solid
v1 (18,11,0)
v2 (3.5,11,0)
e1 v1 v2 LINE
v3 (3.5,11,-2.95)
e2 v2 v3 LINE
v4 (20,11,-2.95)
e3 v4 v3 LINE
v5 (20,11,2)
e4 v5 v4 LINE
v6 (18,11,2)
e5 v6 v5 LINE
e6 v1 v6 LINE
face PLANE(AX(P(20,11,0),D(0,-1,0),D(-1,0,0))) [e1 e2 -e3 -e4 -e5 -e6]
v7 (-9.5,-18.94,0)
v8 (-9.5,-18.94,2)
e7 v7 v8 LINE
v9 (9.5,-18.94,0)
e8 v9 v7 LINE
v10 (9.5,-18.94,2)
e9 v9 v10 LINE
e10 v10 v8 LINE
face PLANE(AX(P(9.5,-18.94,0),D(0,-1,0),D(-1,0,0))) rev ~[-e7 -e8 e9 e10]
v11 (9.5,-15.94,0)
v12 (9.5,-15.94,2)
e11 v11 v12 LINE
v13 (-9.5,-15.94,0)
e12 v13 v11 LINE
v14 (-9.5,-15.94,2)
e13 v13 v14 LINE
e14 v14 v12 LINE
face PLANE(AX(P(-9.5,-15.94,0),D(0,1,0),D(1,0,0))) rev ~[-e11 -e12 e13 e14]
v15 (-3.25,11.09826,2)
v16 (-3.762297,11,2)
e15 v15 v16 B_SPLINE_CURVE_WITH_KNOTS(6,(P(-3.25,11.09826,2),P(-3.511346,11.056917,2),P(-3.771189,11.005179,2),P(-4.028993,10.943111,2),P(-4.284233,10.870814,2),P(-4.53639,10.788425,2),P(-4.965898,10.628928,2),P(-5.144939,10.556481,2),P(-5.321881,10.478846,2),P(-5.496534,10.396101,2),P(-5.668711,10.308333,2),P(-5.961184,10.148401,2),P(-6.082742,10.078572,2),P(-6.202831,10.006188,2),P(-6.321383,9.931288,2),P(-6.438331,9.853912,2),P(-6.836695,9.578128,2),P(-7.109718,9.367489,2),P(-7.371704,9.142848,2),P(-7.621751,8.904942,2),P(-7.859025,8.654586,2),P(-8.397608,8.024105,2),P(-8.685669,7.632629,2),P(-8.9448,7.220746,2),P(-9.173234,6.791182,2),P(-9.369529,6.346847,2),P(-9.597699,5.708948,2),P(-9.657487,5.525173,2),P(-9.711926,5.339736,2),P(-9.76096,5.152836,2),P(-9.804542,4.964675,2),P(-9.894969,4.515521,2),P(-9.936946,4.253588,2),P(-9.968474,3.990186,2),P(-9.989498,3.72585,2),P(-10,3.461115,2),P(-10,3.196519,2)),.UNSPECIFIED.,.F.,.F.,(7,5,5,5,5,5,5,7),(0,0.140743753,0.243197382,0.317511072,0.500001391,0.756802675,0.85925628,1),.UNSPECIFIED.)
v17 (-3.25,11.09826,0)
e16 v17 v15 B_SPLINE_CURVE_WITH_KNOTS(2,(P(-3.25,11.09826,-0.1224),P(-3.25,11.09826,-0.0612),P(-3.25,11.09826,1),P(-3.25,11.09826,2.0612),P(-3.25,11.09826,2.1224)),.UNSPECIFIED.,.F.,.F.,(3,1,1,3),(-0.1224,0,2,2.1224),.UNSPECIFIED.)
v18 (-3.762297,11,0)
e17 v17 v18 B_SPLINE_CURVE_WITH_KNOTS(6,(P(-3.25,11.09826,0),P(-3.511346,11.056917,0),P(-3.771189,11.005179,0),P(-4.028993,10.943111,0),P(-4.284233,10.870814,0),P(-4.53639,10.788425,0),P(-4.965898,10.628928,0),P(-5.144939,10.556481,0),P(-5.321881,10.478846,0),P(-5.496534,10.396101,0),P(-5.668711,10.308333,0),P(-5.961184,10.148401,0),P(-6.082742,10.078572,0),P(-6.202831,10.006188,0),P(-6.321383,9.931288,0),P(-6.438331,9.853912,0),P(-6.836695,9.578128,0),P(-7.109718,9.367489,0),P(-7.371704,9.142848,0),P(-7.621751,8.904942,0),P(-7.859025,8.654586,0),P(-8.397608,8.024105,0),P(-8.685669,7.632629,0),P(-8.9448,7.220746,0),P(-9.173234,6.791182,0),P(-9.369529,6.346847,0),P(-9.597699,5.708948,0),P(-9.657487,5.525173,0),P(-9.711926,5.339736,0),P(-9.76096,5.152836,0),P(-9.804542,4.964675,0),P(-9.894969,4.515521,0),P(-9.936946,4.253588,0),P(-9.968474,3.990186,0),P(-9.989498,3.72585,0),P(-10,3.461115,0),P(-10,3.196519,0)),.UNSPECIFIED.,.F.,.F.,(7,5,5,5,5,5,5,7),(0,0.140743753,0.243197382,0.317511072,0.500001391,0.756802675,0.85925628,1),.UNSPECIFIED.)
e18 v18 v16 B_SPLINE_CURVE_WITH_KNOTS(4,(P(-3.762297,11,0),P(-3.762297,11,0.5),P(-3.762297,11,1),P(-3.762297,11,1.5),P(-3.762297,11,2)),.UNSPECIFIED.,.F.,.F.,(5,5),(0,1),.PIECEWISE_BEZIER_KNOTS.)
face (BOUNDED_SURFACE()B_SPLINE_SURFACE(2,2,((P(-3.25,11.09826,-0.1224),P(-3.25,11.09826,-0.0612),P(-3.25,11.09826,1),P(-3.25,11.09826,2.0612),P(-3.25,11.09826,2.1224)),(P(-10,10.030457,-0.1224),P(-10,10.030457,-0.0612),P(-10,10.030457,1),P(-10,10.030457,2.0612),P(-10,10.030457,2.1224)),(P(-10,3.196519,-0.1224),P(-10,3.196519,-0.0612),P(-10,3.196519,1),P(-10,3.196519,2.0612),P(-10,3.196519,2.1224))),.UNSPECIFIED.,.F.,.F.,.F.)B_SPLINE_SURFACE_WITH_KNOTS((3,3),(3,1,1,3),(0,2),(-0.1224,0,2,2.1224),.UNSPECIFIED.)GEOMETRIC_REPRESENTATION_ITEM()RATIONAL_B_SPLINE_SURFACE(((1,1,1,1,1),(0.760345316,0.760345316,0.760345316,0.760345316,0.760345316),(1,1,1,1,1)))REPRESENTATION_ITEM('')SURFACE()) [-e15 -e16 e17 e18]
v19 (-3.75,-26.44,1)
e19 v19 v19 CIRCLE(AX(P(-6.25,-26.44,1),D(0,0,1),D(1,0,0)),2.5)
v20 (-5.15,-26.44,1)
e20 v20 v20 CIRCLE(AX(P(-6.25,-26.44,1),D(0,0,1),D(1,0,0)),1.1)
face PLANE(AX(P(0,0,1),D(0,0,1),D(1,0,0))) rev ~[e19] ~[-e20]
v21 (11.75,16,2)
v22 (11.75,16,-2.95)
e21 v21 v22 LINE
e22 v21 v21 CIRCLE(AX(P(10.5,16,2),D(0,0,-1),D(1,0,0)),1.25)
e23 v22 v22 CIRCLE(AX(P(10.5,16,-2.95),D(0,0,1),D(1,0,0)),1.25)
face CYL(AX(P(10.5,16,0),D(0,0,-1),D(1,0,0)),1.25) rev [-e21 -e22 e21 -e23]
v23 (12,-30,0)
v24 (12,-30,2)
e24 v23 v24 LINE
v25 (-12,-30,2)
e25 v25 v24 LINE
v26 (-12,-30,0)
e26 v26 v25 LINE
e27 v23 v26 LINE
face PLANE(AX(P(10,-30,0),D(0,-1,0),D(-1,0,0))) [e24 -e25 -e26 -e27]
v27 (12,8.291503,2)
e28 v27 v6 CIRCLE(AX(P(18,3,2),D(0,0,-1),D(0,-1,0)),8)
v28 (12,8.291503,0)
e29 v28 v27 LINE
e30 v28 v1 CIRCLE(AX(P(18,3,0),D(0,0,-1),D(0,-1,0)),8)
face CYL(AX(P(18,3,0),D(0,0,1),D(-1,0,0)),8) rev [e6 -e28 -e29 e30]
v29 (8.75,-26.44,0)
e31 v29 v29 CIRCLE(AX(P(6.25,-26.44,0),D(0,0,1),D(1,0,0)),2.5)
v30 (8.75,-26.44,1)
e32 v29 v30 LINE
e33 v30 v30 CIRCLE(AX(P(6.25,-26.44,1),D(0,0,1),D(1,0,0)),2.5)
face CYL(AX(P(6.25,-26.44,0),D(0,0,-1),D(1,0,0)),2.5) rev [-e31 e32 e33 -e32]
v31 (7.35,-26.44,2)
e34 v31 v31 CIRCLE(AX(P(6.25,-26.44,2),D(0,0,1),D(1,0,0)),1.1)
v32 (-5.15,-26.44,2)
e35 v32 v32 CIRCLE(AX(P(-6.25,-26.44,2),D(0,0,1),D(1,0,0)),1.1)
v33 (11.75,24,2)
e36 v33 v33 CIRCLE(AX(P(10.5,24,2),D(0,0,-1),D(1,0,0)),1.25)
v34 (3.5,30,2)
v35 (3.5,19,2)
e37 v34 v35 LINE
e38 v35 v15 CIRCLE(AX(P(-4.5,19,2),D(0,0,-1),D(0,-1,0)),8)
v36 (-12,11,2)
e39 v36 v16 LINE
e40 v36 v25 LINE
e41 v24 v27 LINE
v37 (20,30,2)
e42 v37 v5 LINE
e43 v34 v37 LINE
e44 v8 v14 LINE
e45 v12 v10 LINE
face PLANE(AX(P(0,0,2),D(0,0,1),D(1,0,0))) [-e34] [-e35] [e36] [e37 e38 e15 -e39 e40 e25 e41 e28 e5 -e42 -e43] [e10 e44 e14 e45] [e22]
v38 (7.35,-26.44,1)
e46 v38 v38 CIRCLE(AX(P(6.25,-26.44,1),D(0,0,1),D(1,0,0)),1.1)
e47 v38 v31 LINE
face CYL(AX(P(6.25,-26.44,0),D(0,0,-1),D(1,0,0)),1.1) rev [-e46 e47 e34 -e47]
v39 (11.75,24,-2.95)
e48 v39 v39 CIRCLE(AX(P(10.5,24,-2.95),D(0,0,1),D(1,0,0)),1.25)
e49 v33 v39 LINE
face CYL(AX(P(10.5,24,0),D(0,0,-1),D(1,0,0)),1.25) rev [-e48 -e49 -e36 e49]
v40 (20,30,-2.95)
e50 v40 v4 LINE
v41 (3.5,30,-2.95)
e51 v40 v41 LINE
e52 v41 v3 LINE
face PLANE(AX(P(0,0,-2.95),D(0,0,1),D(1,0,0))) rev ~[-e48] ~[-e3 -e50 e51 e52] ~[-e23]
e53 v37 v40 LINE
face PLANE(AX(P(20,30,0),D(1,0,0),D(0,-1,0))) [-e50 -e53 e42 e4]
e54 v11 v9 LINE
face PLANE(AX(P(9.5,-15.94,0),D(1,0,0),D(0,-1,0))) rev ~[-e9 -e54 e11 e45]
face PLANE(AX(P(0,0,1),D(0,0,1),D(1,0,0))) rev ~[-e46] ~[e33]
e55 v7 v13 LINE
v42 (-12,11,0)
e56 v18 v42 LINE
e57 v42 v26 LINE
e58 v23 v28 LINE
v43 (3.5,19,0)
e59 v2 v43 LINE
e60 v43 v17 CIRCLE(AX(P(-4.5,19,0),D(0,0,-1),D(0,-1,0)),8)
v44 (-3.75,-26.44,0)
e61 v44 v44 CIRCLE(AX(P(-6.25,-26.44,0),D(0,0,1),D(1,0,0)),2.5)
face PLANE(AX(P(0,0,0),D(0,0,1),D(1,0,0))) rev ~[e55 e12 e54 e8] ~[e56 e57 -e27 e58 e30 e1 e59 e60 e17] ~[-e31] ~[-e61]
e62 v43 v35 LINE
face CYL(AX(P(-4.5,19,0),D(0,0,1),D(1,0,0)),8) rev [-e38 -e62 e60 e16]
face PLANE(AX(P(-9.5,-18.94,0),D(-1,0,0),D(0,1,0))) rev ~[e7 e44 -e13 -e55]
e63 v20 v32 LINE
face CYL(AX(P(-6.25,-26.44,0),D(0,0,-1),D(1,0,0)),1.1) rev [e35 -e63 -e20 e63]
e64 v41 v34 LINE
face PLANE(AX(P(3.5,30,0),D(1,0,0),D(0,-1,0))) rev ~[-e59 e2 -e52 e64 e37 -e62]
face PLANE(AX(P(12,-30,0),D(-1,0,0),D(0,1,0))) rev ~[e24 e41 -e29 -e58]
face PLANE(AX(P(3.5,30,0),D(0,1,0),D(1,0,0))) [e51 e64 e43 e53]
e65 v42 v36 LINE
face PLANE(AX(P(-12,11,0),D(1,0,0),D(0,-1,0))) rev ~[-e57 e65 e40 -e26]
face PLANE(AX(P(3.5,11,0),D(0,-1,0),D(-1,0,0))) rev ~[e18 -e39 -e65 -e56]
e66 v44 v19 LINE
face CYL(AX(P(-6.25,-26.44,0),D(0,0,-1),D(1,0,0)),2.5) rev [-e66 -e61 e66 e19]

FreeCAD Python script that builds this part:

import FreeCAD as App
import Part
import Sketcher

V = App.Vector
Q = App.Units.Quantity


def edges_at(feature, points):
    """Names of the edges that pass closest to the given points."""
    edges = feature.Shape.Edges
    near = lambda p: min(range(len(edges)), key=lambda i: edges[i].distToShape(Part.Vertex(*p))[0])
    return sorted({f"Edge{near(p) + 1}" for p in points})

doc = App.newDocument("Part")
params = doc.addObject("Spreadsheet::Sheet", "Params")
for row, (alias, value) in enumerate([
    ("sketch1_diameter", "2.5 mm"),
    ("sketch1_diameter2", "2.2 mm"),
    ("sketch1_width", "20 mm"),
    ("sketch1_width2", "10 mm"),
    ("sketch1_width3", "19 mm"),
    ("pad1_length", "2 mm"),
    ("sketch2_diameter", "2.5 mm"),
    ("sketch2_height", "19 mm"),
    ("pad2_length", "2.95 mm"),
    ("fillet_radius", "8 mm"),
    ("sketch3_diameter", "5 mm"),
    ("sketch3_diameter2", "2.2 mm"),
    ("pocket1_length", "1 mm"),
    ("fillet2_radius", "8 mm"),
    ("sketch4_diameter", "5 mm"),
    ("sketch4_width", "19 mm"),
    ("sketch4_height", "3 mm"),
    ("sketch4_height2", "41 mm"),
    ("pad3_length", "2 mm"),
], start=1):
    params.set(f"A{row}", alias)
    params.set(f"B{row}", "=" + value)
    params.setAlias(f"B{row}", alias)

body = doc.addObject("PartDesign::Body", "Body")

# Sketch on XY plane
sketch1 = body.newObject("Sketcher::SketchObject", "Sketch")
sketch1.AttachmentSupport = (doc.getObject("XY_Plane"), [""])
sketch1.MapMode = "FlatFace"
sketch1.addGeometry(Part.LineSegment(V(3.5, 30, 0), V(3.5, 11, 0)), False)
sketch1.addGeometry(Part.LineSegment(V(3.5, 11, 0), V(-10, 11, 0)), False)
sketch1.addGeometry(Part.LineSegment(V(-10, 11, 0), V(-10, -30, 0)), False)
sketch1.addGeometry(Part.LineSegment(V(-10, -30, 0), V(10, -30, 0)), False)
sketch1.addGeometry(Part.LineSegment(V(10, -30, 0), V(10, 11, 0)), False)
sketch1.addGeometry(Part.LineSegment(V(10, 11, 0), V(20, 11, 0)), False)
sketch1.addGeometry(Part.LineSegment(V(20, 11, 0), V(20, 30, 0)), False)
sketch1.addGeometry(Part.LineSegment(V(20, 30, 0), V(3.5, 30, 0)), False)
sketch1.addGeometry(Part.Circle(V(10.5, 24, 0), V(0, 0, 1), 1.2), False)
sketch1.addGeometry(Part.Circle(V(10.5, 16, 0), V(0, 0, 1), 1.2), False)
sketch1.addGeometry(Part.LineSegment(V(-9.5, -18.9, 0), V(-9.5, -15.9, 0)), False)
sketch1.addGeometry(Part.LineSegment(V(-9.5, -15.9, 0), V(9.5, -15.9, 0)), False)
sketch1.addGeometry(Part.LineSegment(V(9.5, -15.9, 0), V(9.5, -18.9, 0)), False)
sketch1.addGeometry(Part.LineSegment(V(9.5, -18.9, 0), V(-9.5, -18.9, 0)), False)
sketch1.addGeometry(Part.Circle(V(6.2, -26.4, 0), V(0, 0, 1), 1.1), False)
sketch1.addGeometry(Part.Circle(V(-6.2, -26.4, 0), V(0, 0, 1), 1.1), False)
sketch1.addConstraint(Sketcher.Constraint("Coincident", 0, 2, 1, 1))
sketch1.addConstraint(Sketcher.Constraint("Coincident", 1, 2, 2, 1))
sketch1.addConstraint(Sketcher.Constraint("Coincident", 2, 2, 3, 1))
sketch1.addConstraint(Sketcher.Constraint("Coincident", 3, 2, 4, 1))
sketch1.addConstraint(Sketcher.Constraint("Coincident", 4, 2, 5, 1))
sketch1.addConstraint(Sketcher.Constraint("Coincident", 5, 2, 6, 1))
sketch1.addConstraint(Sketcher.Constraint("Coincident", 6, 2, 7, 1))
sketch1.addConstraint(Sketcher.Constraint("Coincident", 7, 2, 0, 1))
sketch1.addConstraint(Sketcher.Constraint("Coincident", 10, 2, 11, 1))
sketch1.addConstraint(Sketcher.Constraint("Coincident", 11, 2, 12, 1))
sketch1.addConstraint(Sketcher.Constraint("Coincident", 12, 2, 13, 1))
sketch1.addConstraint(Sketcher.Constraint("Coincident", 13, 2, 10, 1))
sketch1.addConstraint(Sketcher.Constraint("Vertical", 0))
sketch1.addConstraint(Sketcher.Constraint("Horizontal", 1))
sketch1.addConstraint(Sketcher.Constraint("Vertical", 2))
sketch1.addConstraint(Sketcher.Constraint("Horizontal", 3))
sketch1.addConstraint(Sketcher.Constraint("Vertical", 4))
sketch1.addConstraint(Sketcher.Constraint("Horizontal", 5))
sketch1.addConstraint(Sketcher.Constraint("Vertical", 6))
sketch1.addConstraint(Sketcher.Constraint("Horizontal", 7))
sketch1.addConstraint(Sketcher.Constraint("Vertical", 10))
sketch1.addConstraint(Sketcher.Constraint("Horizontal", 11))
sketch1.addConstraint(Sketcher.Constraint("Vertical", 12))
sketch1.addConstraint(Sketcher.Constraint("Horizontal", 13))
sketch1.addConstraint(Sketcher.Constraint("Equal", 8, 9))
sketch1.addConstraint(Sketcher.Constraint("Equal", 14, 15))
sketch1.addConstraint(Sketcher.Constraint("Symmetric", 14, 3, 15, 3, -2))
sketch1.addConstraint(Sketcher.Constraint("Symmetric", 1, 2, 4, 2, -2))
sketch1.addConstraint(Sketcher.Constraint("Vertical", 8, 3, 9, 3))
sketch1.addConstraint(Sketcher.Constraint("Equal", 13, 0))
sketch1.addConstraint(Sketcher.Constraint("Diameter", 8, Q("2.5 mm")))
sketch1.addConstraint(Sketcher.Constraint("Diameter", 14, Q("2.2 mm")))
sketch1.addConstraint(Sketcher.Constraint("DistanceX", 3, 1, 3, 2, Q("20 mm")))
sketch1.addConstraint(Sketcher.Constraint("DistanceX", 5, 1, 5, 2, Q("10 mm")))
sketch1.addConstraint(Sketcher.Constraint("DistanceX", 11, 1, 11, 2, Q("19 mm")))
sketch1.addConstraint(Sketcher.Constraint("DistanceY", 10, 1, 10, 2, Q("3 mm")))
sketch1.addConstraint(Sketcher.Constraint("DistanceY", 9, 3, 8, 3, Q("8 mm")))
sketch1.addConstraint(Sketcher.Constraint("DistanceX", 0, 2, 9, 3, Q("7 mm")))
sketch1.addConstraint(Sketcher.Constraint("DistanceY", 0, 2, 9, 3, Q("5 mm")))
sketch1.addConstraint(Sketcher.Constraint("DistanceX", -1, 1, 8, 3, Q("10.5 mm")))
sketch1.addConstraint(Sketcher.Constraint("DistanceX", 15, 3, 14, 3, Q("12.5 mm")))
sketch1.addConstraint(Sketcher.Constraint("DistanceY", 15, 3, 10, 2, Q("10.5 mm")))
sketch1.addConstraint(Sketcher.Constraint("DistanceY", 2, 2, 2, 1, Q("41 mm")))
sketch1.addConstraint(Sketcher.Constraint("DistanceY", 2, 2, 15, 3, Q("3.56 mm")))
sketch1.addConstraint(Sketcher.Constraint("DistanceY", -1, 1, 8, 3, Q("24 mm")))
sketch1.addConstraint(Sketcher.Constraint("DistanceX", 10, 2, -1, 1, Q("9.5 mm")))
sketch1.setExpression("Constraints[30]", "Params.sketch1_diameter")
sketch1.setExpression("Constraints[31]", "Params.sketch1_diameter2")
sketch1.setExpression("Constraints[32]", "Params.sketch1_width")
sketch1.setExpression("Constraints[33]", "Params.sketch1_width2")
sketch1.setExpression("Constraints[34]", "Params.sketch1_width3")
pad1 = body.newObject("PartDesign::Pad", "Pad")
pad1.Profile = sketch1
pad1.setExpression("Length", "Params.pad1_length")

# Sketch on XY plane
sketch2 = body.newObject("Sketcher::SketchObject", "Sketch001")
sketch2.AttachmentSupport = (doc.getObject("XY_Plane"), [""])
sketch2.MapMode = "FlatFace"
sketch2.addGeometry(Part.LineSegment(V(3.5, 30, 0), V(3.5, 11, 0)), False)
sketch2.addGeometry(Part.LineSegment(V(3.5, 11, 0), V(20, 11, 0)), False)
sketch2.addGeometry(Part.LineSegment(V(20, 11, 0), V(20, 30, 0)), False)
sketch2.addGeometry(Part.LineSegment(V(20, 30, 0), V(3.5, 30, 0)), False)
sketch2.addGeometry(Part.Circle(V(10.5, 24, 0), V(0, 0, 1), 1.2), False)
sketch2.addGeometry(Part.Circle(V(10.5, 16, 0), V(0, 0, 1), 1.2), False)
sketch2.addConstraint(Sketcher.Constraint("Coincident", 0, 2, 1, 1))
sketch2.addConstraint(Sketcher.Constraint("Coincident", 1, 2, 2, 1))
sketch2.addConstraint(Sketcher.Constraint("Coincident", 2, 2, 3, 1))
sketch2.addConstraint(Sketcher.Constraint("Coincident", 3, 2, 0, 1))
sketch2.addConstraint(Sketcher.Constraint("Vertical", 0))
sketch2.addConstraint(Sketcher.Constraint("Horizontal", 1))
sketch2.addConstraint(Sketcher.Constraint("Vertical", 2))
sketch2.addConstraint(Sketcher.Constraint("Horizontal", 3))
sketch2.addConstraint(Sketcher.Constraint("Equal", 4, 5))
sketch2.addConstraint(Sketcher.Constraint("Vertical", 4, 3, 5, 3))
sketch2.addConstraint(Sketcher.Constraint("Diameter", 4, Q("2.5 mm")))
sketch2.addConstraint(Sketcher.Constraint("DistanceY", 0, 2, 0, 1, Q("19 mm")))
sketch2.addConstraint(Sketcher.Constraint("DistanceX", -1, 1, 1, 2, Q("20 mm")))
sketch2.addConstraint(Sketcher.Constraint("DistanceY", 5, 3, 4, 3, Q("8 mm")))
sketch2.addConstraint(Sketcher.Constraint("DistanceX", 0, 2, 5, 3, Q("7 mm")))
sketch2.addConstraint(Sketcher.Constraint("DistanceY", 0, 2, 5, 3, Q("5 mm")))
sketch2.addConstraint(Sketcher.Constraint("DistanceX", -1, 1, 4, 3, Q("10.5 mm")))
sketch2.addConstraint(Sketcher.Constraint("DistanceY", -1, 1, 4, 3, Q("24 mm")))
sketch2.setExpression("Constraints[10]", "Params.sketch2_diameter")
sketch2.setExpression("Constraints[11]", "Params.sketch2_height")
pad2 = body.newObject("PartDesign::Pad", "Pad001")
pad2.Profile = sketch2
pad2.setExpression("Length", "Params.pad2_length")
pad2.Reversed = True
doc.recompute()

fillet = body.newObject("PartDesign::Fillet", "Fillet")
fillet.Base = (pad2, edges_at(pad2, [(10, 11, 1), (3.5, 11, 1)]))
fillet.setExpression("Radius", "Params.fillet_radius")

# Sketch on XY plane
sketch3 = body.newObject("Sketcher::SketchObject", "Sketch002")
sketch3.AttachmentSupport = (doc.getObject("XY_Plane"), [""])
sketch3.MapMode = "FlatFace"
sketch3.addGeometry(Part.Circle(V(6.2, -26.4, 0), V(0, 0, 1), 2.5), False)
sketch3.addGeometry(Part.Circle(V(6.2, -26.4, 0), V(0, 0, 1), 1.1), False)
sketch3.addGeometry(Part.Circle(V(-6.2, -26.4, 0), V(0, 0, 1), 2.5), False)
sketch3.addGeometry(Part.Circle(V(-6.2, -26.4, 0), V(0, 0, 1), 1.1), False)
sketch3.addConstraint(Sketcher.Constraint("Coincident", 1, 3, 0, 3))
sketch3.addConstraint(Sketcher.Constraint("Coincident", 3, 3, 2, 3))
sketch3.addConstraint(Sketcher.Constraint("Equal", 0, 2))
sketch3.addConstraint(Sketcher.Constraint("Equal", 1, 3))
sketch3.addConstraint(Sketcher.Constraint("Symmetric", 0, 3, 2, 3, -2))
sketch3.addConstraint(Sketcher.Constraint("Diameter", 0, Q("5 mm")))
sketch3.addConstraint(Sketcher.Constraint("Diameter", 1, Q("2.2 mm")))
sketch3.addConstraint(Sketcher.Constraint("DistanceX", 2, 3, 0, 3, Q("12.5 mm")))
sketch3.addConstraint(Sketcher.Constraint("DistanceY", 0, 3, -1, 1, Q("26.44 mm")))
sketch3.setExpression("Constraints[5]", "Params.sketch3_diameter")
sketch3.setExpression("Constraints[6]", "Params.sketch3_diameter2")
pocket1 = body.newObject("PartDesign::Pocket", "Pocket")
pocket1.Profile = sketch3
pocket1.setExpression("Length", "Params.pocket1_length")
pocket1.Reversed = True
doc.recompute()

fillet2 = body.newObject("PartDesign::Fillet", "Fillet001")
fillet2.Base = (pocket1, edges_at(pocket1, [(-10, 11, 1)]))
fillet2.setExpression("Radius", "Params.fillet2_radius")

# Sketch on XY plane
sketch4 = body.newObject("Sketcher::SketchObject", "Sketch003")
sketch4.AttachmentSupport = (doc.getObject("XY_Plane"), [""])
sketch4.MapMode = "FlatFace"
sketch4.addGeometry(Part.LineSegment(V(-12, 11, 0), V(-12, -30, 0)), False)
sketch4.addGeometry(Part.LineSegment(V(-12, -30, 0), V(12, -30, 0)), False)
sketch4.addGeometry(Part.LineSegment(V(12, -30, 0), V(12, 11, 0)), False)
sketch4.addGeometry(Part.LineSegment(V(12, 11, 0), V(-12, 11, 0)), False)
sketch4.addGeometry(Part.Circle(V(-6.2, -26.4, 0), V(0, 0, 1), 2.5), False)
sketch4.addGeometry(Part.LineSegment(V(-9.5, -18.9, 0), V(-9.5, -15.9, 0)), False)
sketch4.addGeometry(Part.LineSegment(V(-9.5, -15.9, 0), V(9.5, -15.9, 0)), False)
sketch4.addGeometry(Part.LineSegment(V(9.5, -15.9, 0), V(9.5, -18.9, 0)), False)
sketch4.addGeometry(Part.LineSegment(V(9.5, -18.9, 0), V(-9.5, -18.9, 0)), False)
sketch4.addGeometry(Part.Circle(V(6.2, -26.4, 0), V(0, 0, 1), 2.5), False)
sketch4.addConstraint(Sketcher.Constraint("Coincident", 0, 2, 1, 1))
sketch4.addConstraint(Sketcher.Constraint("Coincident", 1, 2, 2, 1))
sketch4.addConstraint(Sketcher.Constraint("Coincident", 2, 2, 3, 1))
sketch4.addConstraint(Sketcher.Constraint("Coincident", 3, 2, 0, 1))
sketch4.addConstraint(Sketcher.Constraint("Coincident", 5, 2, 6, 1))
sketch4.addConstraint(Sketcher.Constraint("Coincident", 6, 2, 7, 1))
sketch4.addConstraint(Sketcher.Constraint("Coincident", 7, 2, 8, 1))
sketch4.addConstraint(Sketcher.Constraint("Coincident", 8, 2, 5, 1))
sketch4.addConstraint(Sketcher.Constraint("Vertical", 0))
sketch4.addConstraint(Sketcher.Constraint("Horizontal", 1))
sketch4.addConstraint(Sketcher.Constraint("Vertical", 2))
sketch4.addConstraint(Sketcher.Constraint("Horizontal", 3))
sketch4.addConstraint(Sketcher.Constraint("Vertical", 5))
sketch4.addConstraint(Sketcher.Constraint("Horizontal", 6))
sketch4.addConstraint(Sketcher.Constraint("Vertical", 7))
sketch4.addConstraint(Sketcher.Constraint("Horizontal", 8))
sketch4.addConstraint(Sketcher.Constraint("Equal", 4, 9))
sketch4.addConstraint(Sketcher.Constraint("Symmetric", 4, 3, 9, 3, -2))
sketch4.addConstraint(Sketcher.Constraint("Diameter", 4, Q("5 mm")))
sketch4.addConstraint(Sketcher.Constraint("DistanceX", 6, 1, 6, 2, Q("19 mm")))
sketch4.addConstraint(Sketcher.Constraint("DistanceY", 5, 1, 5, 2, Q("3 mm")))
sketch4.addConstraint(Sketcher.Constraint("DistanceX", 4, 3, 9, 3, Q("12.5 mm")))
sketch4.addConstraint(Sketcher.Constraint("DistanceY", 4, 3, 5, 2, Q("10.5 mm")))
sketch4.addConstraint(Sketcher.Constraint("DistanceX", 0, 2, 5, 2, Q("2.5 mm")))
sketch4.addConstraint(Sketcher.Constraint("DistanceX", 6, 2, 1, 2, Q("2.5 mm")))
sketch4.addConstraint(Sketcher.Constraint("DistanceY", 0, 2, 0, 1, Q("41 mm")))
sketch4.addConstraint(Sketcher.Constraint("DistanceY", 0, 2, 4, 3, Q("3.56 mm")))
sketch4.addConstraint(Sketcher.Constraint("DistanceX", 0, 2, -1, 1, Q("12 mm")))
sketch4.addConstraint(Sketcher.Constraint("DistanceY", 0, 2, -1, 1, Q("30 mm")))
sketch4.setExpression("Constraints[18]", "Params.sketch4_diameter")
sketch4.setExpression("Constraints[19]", "Params.sketch4_width")
sketch4.setExpression("Constraints[20]", "Params.sketch4_height")
sketch4.setExpression("Constraints[25]", "Params.sketch4_height2")
pad3 = body.newObject("PartDesign::Pad", "Pad002")
pad3.Profile = sketch4
pad3.setExpression("Length", "Params.pad3_length")

doc.recompute()
